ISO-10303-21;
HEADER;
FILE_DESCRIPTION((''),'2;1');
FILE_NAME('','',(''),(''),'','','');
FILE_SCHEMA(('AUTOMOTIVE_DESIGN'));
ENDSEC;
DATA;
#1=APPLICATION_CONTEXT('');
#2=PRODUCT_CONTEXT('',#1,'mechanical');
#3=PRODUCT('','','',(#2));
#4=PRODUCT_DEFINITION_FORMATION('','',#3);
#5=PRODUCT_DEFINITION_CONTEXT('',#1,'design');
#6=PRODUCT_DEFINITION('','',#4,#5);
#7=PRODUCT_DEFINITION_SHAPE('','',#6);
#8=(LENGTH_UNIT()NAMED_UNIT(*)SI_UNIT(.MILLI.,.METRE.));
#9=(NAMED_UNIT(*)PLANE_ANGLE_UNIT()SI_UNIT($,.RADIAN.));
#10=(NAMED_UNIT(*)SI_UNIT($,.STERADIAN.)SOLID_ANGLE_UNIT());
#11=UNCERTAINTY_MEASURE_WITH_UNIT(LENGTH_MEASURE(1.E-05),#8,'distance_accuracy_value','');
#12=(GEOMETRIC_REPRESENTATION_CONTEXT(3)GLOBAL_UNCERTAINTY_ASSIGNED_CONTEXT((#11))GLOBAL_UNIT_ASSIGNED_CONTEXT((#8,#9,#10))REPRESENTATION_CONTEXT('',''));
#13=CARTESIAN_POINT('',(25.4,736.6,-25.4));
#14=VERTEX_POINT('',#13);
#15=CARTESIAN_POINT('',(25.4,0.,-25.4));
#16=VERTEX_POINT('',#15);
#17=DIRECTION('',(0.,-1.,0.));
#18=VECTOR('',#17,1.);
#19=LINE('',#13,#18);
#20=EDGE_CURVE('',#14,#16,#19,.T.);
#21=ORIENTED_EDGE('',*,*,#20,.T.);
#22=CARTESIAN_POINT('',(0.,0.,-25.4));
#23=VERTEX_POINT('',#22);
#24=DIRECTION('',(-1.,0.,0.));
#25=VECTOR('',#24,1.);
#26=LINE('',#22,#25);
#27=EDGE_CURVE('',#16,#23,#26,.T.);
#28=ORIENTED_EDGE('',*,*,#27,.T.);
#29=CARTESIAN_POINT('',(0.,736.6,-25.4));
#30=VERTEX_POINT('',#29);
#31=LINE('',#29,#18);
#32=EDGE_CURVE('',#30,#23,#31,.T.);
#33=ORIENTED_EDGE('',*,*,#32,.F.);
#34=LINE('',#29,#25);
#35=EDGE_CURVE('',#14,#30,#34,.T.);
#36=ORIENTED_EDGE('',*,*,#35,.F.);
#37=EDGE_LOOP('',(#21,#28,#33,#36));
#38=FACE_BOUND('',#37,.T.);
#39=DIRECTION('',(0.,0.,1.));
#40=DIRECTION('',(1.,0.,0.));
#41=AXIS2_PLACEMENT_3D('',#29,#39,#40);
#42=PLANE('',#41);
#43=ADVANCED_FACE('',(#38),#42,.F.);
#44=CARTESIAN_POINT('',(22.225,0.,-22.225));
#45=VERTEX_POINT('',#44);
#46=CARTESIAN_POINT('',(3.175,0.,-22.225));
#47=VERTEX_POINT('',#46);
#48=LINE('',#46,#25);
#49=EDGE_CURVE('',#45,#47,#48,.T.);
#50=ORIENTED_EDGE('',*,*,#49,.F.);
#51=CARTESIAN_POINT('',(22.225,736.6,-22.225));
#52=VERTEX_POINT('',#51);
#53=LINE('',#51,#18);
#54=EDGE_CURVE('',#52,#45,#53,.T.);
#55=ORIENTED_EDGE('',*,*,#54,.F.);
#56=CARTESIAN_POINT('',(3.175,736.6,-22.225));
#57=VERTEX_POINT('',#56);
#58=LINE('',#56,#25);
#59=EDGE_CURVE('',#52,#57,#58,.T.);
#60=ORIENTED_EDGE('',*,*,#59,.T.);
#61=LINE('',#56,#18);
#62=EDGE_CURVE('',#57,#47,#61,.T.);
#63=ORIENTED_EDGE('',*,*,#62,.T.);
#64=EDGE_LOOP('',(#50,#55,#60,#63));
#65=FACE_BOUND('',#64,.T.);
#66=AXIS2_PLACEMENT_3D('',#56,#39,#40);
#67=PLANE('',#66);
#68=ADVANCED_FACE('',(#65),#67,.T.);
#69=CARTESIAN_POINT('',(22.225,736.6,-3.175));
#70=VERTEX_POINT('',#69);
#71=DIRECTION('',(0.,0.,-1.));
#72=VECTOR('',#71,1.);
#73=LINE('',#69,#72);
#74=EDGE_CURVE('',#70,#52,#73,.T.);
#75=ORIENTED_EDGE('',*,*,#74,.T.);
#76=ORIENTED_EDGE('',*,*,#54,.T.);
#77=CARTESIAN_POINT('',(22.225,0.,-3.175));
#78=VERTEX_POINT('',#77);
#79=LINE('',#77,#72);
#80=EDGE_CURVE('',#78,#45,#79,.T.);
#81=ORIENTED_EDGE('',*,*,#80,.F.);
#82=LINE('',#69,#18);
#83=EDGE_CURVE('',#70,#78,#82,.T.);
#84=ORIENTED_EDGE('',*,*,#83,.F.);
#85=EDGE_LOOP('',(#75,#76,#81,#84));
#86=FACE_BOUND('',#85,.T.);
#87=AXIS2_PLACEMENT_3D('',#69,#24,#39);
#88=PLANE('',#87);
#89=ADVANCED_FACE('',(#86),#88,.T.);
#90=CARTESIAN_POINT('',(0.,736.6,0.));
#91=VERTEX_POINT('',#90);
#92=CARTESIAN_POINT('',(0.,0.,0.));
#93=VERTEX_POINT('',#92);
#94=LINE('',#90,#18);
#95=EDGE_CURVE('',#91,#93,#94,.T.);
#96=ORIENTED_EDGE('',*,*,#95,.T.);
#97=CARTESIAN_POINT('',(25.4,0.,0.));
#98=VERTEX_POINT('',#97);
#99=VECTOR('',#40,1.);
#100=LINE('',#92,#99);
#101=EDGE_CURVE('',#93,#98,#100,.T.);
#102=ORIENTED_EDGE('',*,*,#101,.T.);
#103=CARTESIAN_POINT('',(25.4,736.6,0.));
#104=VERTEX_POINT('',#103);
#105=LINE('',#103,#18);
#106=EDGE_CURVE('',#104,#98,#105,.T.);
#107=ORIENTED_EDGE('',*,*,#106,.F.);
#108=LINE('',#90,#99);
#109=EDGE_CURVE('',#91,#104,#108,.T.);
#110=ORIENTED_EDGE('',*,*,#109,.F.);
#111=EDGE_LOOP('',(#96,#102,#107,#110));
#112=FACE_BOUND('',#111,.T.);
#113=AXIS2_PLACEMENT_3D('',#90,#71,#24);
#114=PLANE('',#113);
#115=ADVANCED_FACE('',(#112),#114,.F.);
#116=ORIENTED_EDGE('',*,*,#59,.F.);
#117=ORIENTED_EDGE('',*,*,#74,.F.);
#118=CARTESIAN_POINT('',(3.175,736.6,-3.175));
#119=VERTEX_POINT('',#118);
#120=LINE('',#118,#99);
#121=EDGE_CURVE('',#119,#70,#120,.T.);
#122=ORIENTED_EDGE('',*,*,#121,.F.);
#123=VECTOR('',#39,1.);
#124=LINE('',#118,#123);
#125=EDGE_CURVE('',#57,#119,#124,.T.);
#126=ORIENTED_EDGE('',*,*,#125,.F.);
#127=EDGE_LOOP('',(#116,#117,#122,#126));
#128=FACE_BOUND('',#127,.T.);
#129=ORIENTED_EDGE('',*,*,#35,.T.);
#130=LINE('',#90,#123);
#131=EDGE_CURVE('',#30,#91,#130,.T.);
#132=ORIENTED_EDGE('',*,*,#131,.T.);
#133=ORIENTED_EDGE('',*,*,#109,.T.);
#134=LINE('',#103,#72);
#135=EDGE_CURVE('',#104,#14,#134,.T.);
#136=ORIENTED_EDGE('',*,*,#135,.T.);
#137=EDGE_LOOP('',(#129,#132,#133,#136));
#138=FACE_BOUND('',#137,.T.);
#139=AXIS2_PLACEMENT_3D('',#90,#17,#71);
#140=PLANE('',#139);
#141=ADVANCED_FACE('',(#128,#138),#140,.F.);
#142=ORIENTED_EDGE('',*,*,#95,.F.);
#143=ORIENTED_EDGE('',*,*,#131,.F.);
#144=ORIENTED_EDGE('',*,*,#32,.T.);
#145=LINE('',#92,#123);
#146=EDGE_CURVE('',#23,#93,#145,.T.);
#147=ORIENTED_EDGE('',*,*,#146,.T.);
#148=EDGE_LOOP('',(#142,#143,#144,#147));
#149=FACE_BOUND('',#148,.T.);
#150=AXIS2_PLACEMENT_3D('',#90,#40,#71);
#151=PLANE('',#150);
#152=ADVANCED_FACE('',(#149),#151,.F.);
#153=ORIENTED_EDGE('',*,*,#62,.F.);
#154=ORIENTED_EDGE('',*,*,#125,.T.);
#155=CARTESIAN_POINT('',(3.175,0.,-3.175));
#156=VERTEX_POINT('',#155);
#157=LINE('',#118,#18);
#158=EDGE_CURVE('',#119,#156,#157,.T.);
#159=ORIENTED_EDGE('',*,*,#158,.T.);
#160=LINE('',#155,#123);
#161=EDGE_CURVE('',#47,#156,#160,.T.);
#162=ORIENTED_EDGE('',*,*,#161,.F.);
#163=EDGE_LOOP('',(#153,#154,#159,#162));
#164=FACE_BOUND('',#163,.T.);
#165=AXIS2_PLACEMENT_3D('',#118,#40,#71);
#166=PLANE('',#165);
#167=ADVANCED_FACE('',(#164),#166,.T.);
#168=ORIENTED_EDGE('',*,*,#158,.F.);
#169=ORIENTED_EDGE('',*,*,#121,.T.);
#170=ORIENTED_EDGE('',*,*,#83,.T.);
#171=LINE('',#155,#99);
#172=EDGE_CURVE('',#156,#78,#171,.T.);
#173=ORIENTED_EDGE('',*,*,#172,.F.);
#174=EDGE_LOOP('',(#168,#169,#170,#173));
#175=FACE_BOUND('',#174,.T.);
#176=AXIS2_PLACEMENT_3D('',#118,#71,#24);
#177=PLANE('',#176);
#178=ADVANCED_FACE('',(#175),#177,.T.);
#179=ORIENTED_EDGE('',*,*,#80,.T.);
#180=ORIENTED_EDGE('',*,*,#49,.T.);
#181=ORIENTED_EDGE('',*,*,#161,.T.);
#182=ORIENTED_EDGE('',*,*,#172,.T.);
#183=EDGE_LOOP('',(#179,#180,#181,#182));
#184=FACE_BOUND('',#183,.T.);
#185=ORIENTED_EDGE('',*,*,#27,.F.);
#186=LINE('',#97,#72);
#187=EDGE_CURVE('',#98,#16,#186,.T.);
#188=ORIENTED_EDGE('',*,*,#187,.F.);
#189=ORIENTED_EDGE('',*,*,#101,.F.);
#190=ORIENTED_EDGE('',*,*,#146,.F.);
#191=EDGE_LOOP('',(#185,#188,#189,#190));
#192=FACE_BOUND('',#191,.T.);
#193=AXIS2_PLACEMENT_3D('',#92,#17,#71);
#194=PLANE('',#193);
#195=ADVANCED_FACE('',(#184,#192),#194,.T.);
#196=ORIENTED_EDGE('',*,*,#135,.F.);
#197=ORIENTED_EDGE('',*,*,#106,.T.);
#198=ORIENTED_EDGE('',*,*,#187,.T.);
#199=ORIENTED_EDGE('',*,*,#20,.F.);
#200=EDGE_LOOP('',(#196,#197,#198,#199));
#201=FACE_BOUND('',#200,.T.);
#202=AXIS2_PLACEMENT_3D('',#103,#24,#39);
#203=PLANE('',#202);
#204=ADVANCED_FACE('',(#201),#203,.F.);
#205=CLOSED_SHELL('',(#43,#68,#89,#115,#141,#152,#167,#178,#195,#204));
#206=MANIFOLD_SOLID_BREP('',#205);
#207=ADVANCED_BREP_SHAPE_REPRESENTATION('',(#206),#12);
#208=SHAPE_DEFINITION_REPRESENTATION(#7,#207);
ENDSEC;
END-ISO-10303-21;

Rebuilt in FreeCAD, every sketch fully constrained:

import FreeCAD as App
import Part
import Sketcher

V = App.Vector
Q = App.Units.Quantity

doc = App.newDocument("Part")
body = doc.addObject("PartDesign::Body", "Body")

sketch1 = body.newObject("Sketcher::SketchObject", "Sketch")
sketch1.AttachmentSupport = (doc.getObject("XZ_Plane"), [""])
sketch1.MapMode = "FlatFace"
sketch1.addGeometry([
    Part.LineSegment(V(0, -25, 0), V(0, 0, 0)),
    Part.LineSegment(V(0, 0, 0), V(25, 0, 0)),
    Part.LineSegment(V(25, 0, 0), V(25, -25, 0)),
    Part.LineSegment(V(25, -25, 0), V(0, -25, 0)),
    Part.LineSegment(V(22, -3, 0), V(3, -3, 0)),
    Part.LineSegment(V(3, -3, 0), V(3, -22, 0)),
    Part.LineSegment(V(3, -22, 0), V(22, -22, 0)),
    Part.LineSegment(V(22, -22, 0), V(22, -3, 0)),
], False)
sketch1.addConstraint([
    Sketcher.Constraint("Coincident", 0, 2, 1, 1),
    Sketcher.Constraint("Coincident", 1, 2, 2, 1),
    Sketcher.Constraint("Coincident", 2, 2, 3, 1),
    Sketcher.Constraint("Coincident", 3, 2, 0, 1),
    Sketcher.Constraint("Coincident", 4, 2, 5, 1),
    Sketcher.Constraint("Coincident", 5, 2, 6, 1),
    Sketcher.Constraint("Coincident", 6, 2, 7, 1),
    Sketcher.Constraint("Coincident", 7, 2, 4, 1),
    Sketcher.Constraint("Vertical", 0),
    Sketcher.Constraint("Horizontal", 1),
    Sketcher.Constraint("Vertical", 2),
    Sketcher.Constraint("Horizontal", 3),
    Sketcher.Constraint("Horizontal", 4),
    Sketcher.Constraint("Vertical", 5),
    Sketcher.Constraint("Horizontal", 6),
    Sketcher.Constraint("Vertical", 7),
    Sketcher.Constraint("Coincident", 0, 2, -1, 1),
    Sketcher.Constraint("Equal", 3, 0),
    Sketcher.Constraint("Equal", 6, 5),
    Sketcher.Constraint("DistanceX", 1, 1, 1, 2, Q("1 in")),
    Sketcher.Constraint("DistanceX", 4, 2, 4, 1, Q("0.75 in")),
    Sketcher.Constraint("DistanceX", -1, 1, 4, 2, Q("0.125 in")),
    Sketcher.Constraint("DistanceY", 4, 2, -1, 1, Q("0.125 in")),
])
pad1 = body.newObject("PartDesign::Pad", "Pad")
pad1.Profile = sketch1
pad1.Length = Q("29 in")
pad1.Reversed = True

doc.recompute()
